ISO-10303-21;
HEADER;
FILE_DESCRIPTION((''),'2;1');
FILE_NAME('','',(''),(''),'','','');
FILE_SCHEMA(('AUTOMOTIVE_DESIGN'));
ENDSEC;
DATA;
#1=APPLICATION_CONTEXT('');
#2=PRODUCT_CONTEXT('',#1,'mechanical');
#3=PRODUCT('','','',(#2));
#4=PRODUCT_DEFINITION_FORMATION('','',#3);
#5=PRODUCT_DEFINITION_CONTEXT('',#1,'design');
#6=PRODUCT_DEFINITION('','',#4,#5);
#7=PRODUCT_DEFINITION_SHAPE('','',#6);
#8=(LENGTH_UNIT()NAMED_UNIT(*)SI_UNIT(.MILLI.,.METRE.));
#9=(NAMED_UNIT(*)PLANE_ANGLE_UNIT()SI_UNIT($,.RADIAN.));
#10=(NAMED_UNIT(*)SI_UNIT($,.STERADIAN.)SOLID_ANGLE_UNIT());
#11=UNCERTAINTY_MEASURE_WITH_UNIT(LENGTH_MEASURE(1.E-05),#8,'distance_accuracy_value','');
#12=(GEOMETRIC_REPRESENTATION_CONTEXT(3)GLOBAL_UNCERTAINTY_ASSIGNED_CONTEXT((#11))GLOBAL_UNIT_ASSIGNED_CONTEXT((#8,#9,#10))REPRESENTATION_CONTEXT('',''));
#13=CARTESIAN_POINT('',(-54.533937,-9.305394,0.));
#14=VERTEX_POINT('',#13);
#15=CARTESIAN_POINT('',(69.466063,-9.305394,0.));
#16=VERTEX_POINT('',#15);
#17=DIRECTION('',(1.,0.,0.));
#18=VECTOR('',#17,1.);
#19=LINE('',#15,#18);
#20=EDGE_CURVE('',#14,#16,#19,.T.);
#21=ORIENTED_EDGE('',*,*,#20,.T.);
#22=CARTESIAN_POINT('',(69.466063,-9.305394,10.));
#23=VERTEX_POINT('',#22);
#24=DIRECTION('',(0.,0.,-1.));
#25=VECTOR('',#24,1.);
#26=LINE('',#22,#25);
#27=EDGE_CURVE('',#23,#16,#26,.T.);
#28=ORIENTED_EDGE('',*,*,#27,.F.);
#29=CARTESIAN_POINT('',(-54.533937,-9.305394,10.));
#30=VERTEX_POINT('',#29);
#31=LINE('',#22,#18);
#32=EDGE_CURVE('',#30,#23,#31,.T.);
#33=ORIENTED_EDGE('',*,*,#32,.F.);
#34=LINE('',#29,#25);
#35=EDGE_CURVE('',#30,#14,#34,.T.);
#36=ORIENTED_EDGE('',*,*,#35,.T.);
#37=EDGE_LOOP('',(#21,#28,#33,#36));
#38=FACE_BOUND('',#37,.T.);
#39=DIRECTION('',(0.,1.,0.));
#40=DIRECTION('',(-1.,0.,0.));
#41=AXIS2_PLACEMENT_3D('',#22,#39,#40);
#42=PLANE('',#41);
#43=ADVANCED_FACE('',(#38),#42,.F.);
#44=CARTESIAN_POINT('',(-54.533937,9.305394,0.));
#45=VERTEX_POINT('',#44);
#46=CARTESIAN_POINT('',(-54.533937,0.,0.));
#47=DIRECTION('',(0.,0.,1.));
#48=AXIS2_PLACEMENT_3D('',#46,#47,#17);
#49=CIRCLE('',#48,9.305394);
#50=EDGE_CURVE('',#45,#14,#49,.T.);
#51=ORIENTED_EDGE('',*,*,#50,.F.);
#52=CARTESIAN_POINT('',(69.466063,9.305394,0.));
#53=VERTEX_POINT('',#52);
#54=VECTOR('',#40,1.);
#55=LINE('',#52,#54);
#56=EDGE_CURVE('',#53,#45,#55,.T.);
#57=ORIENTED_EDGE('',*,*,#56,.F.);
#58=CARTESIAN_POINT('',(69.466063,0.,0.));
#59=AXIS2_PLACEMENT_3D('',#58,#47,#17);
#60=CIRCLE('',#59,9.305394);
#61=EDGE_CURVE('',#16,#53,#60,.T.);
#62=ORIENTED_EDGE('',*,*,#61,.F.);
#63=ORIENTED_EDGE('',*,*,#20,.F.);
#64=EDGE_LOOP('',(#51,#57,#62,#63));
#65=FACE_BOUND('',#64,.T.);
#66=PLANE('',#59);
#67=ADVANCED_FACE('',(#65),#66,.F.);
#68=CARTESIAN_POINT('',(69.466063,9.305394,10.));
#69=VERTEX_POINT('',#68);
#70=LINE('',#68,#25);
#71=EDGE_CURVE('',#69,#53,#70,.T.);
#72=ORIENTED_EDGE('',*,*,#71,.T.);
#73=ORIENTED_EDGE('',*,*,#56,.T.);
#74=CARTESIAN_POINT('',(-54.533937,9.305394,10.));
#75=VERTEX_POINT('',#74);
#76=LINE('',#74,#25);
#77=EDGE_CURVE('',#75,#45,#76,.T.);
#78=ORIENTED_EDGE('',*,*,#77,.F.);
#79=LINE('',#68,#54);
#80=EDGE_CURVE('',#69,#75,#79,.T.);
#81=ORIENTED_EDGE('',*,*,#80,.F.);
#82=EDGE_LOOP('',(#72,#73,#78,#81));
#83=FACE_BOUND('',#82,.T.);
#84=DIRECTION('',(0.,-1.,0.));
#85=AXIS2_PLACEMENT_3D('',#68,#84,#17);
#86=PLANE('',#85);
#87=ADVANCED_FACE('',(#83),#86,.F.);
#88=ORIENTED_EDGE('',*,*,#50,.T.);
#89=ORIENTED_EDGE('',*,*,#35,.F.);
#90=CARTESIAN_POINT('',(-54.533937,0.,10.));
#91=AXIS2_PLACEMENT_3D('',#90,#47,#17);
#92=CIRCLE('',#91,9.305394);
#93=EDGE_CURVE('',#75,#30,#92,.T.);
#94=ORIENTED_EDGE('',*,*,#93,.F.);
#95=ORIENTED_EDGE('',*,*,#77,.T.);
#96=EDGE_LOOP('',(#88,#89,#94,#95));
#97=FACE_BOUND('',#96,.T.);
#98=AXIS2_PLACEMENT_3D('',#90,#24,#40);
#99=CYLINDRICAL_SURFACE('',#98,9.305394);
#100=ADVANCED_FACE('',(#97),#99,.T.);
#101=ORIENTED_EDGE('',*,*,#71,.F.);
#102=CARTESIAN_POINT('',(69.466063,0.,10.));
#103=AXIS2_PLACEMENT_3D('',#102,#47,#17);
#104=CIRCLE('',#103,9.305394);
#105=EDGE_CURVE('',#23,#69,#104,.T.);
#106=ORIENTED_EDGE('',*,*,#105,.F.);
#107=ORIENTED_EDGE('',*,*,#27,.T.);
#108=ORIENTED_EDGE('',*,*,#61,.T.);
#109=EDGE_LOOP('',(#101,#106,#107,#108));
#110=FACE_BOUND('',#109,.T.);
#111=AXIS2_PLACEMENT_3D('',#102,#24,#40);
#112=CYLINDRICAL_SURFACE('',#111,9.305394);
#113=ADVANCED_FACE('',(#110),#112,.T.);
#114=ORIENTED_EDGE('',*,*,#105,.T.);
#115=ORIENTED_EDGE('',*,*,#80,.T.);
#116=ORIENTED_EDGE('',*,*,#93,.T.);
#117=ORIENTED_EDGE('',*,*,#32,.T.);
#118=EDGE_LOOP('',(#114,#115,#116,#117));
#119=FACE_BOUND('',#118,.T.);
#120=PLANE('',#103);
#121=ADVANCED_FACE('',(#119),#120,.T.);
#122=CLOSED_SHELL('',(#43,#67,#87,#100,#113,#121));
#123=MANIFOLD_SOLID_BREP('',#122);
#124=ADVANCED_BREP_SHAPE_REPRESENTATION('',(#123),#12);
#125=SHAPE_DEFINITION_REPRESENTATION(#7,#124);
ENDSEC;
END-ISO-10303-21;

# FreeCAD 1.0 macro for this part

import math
import FreeCAD as App
import Part
import Sketcher

V = App.Vector
Q = App.Units.Quantity

doc = App.newDocument("Part")
params = doc.addObject("Spreadsheet::Sheet", "Params")
for row, (alias, value) in enumerate([
    ("sketch1_width", "124 mm"),
    ("pad1_length", "10 mm"),
], start=1):
    params.set(f"A{row}", alias)
    params.set(f"B{row}", "=" + value)
    params.setAlias(f"B{row}", alias)

body = doc.addObject("PartDesign::Body", "Body")

# Sketch on XY plane
sketch1 = doc.addObject("Sketcher::SketchObject", "Sketch")
body.addObject(sketch1)
sketch1.AttachmentSupport = (doc.XY_Plane, [""])
sketch1.MapMode = "FlatFace"
sketch1.addGeometry([
    Part.LineSegment(V(-55, -9, 0), V(69, -9, 0)),
    Part.ArcOfCircle(Part.Circle(V(69, 0, 0), V(0, 0, 1), 9), math.radians(-90), math.radians(90)),
    Part.LineSegment(V(69, 9, 0), V(-55, 9, 0)),
    Part.ArcOfCircle(Part.Circle(V(-55, 0, 0), V(0, 0, 1), 9), math.radians(90), math.radians(270)),
], False)
sketch1.addConstraint([
    Sketcher.Constraint("Tangent", 0, 2, 1, 1),
    Sketcher.Constraint("Tangent", 1, 2, 2, 1),
    Sketcher.Constraint("Tangent", 2, 2, 3, 1),
    Sketcher.Constraint("Tangent", 3, 2, 0, 1),
    Sketcher.Constraint("Horizontal", 0),
    Sketcher.Constraint("Horizontal", 2),
    Sketcher.Constraint("PointOnObject", 1, 3, -1),
    Sketcher.Constraint("DistanceX", 0, 1, 0, 2, Q("124 mm")),
    Sketcher.Constraint("Radius", 1, Q("9.305394 mm")),
    Sketcher.Constraint("DistanceX", -1, 1, 1, 3, Q("69.466063 mm")),
])
sketch1.setExpression("Constraints[7]", "Params.sketch1_width")
pad1 = doc.addObject("PartDesign::Pad", "Pad")
body.addObject(pad1)
pad1.Profile = sketch1
pad1.setExpression("Length", "Params.pad1_length")

doc.recompute()
